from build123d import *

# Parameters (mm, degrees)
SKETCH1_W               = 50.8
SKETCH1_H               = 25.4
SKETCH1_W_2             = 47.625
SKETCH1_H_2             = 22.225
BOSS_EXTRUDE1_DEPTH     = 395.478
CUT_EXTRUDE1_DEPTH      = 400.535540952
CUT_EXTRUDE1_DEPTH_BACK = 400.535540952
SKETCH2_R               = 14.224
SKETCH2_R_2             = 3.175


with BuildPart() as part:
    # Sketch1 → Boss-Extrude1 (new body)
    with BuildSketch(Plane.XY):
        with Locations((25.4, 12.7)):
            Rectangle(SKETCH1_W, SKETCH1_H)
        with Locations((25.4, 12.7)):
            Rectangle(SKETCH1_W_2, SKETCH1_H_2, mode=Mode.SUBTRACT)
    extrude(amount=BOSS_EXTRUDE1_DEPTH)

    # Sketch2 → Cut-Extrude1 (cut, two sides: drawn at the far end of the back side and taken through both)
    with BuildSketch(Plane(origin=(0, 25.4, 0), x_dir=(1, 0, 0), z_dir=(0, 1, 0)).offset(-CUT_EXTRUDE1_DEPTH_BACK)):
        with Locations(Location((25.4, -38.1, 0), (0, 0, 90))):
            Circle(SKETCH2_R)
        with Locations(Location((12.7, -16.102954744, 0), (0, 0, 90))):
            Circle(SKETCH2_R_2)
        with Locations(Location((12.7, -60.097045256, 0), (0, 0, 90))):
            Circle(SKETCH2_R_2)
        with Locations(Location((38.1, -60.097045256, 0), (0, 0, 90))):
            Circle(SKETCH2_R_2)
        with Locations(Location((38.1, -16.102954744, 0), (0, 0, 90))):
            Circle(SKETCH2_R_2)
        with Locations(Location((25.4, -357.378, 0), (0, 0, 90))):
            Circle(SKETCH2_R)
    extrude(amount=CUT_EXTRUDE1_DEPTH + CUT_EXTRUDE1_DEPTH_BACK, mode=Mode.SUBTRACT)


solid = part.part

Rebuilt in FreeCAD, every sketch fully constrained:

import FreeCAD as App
import Part
import Sketcher
from FreeCAD import Vector
Q = App.Units.Quantity

doc = App.newDocument("Part")
body = doc.addObject("PartDesign::Body", "Body")

# Sketch on XY plane
sketch1 = doc.addObject("Sketcher::SketchObject", "Sketch")
body.addObject(sketch1)
sketch1.AttachmentSupport = (doc.XY_Plane, [""])
sketch1.MapMode = "FlatFace"
sketch1.addGeometry([
    Part.LineSegment(Vector(0, 25.4, 0), Vector(0, 0, 0)),  # 0
    Part.LineSegment(Vector(0, 0, 0), Vector(50.8, 0, 0)),  # 1
    Part.LineSegment(Vector(50.8, 0, 0), Vector(50.8, 25.4, 0)),  # 2
    Part.LineSegment(Vector(50.8, 25.4, 0), Vector(0, 25.4, 0)),  # 3
    Part.LineSegment(Vector(49.2125, 1.5875, 0), Vector(1.5875, 1.5875, 0)),  # 4
    Part.LineSegment(Vector(1.5875, 1.5875, 0), Vector(1.5875, 23.8125, 0)),  # 5
    Part.LineSegment(Vector(1.5875, 23.8125, 0), Vector(49.2125, 23.8125, 0)),  # 6
    Part.LineSegment(Vector(49.2125, 23.8125, 0), Vector(49.2125, 1.5875, 0)),  # 7
], False)
sketch1.addConstraint([
    Sketcher.Constraint("Coincident", 0, 2, 1, 1),
    Sketcher.Constraint("Coincident", 1, 2, 2, 1),
    Sketcher.Constraint("Coincident", 2, 2, 3, 1),
    Sketcher.Constraint("Coincident", 3, 2, 0, 1),
    Sketcher.Constraint("Coincident", 4, 2, 5, 1),
    Sketcher.Constraint("Coincident", 5, 2, 6, 1),
    Sketcher.Constraint("Coincident", 6, 2, 7, 1),
    Sketcher.Constraint("Coincident", 7, 2, 4, 1),
    Sketcher.Constraint("Vertical", 0),
    Sketcher.Constraint("Horizontal", 1),
    Sketcher.Constraint("Vertical", 2),
    Sketcher.Constraint("Horizontal", 3),
    Sketcher.Constraint("Horizontal", 4),
    Sketcher.Constraint("Vertical", 5),
    Sketcher.Constraint("Horizontal", 6),
    Sketcher.Constraint("Vertical", 7),
    Sketcher.Constraint("Coincident", 0, 2, -1, 1),
    Sketcher.Constraint("DistanceX", 1, 1, 1, 2, Q("2 in")),
    Sketcher.Constraint("DistanceY", 0, 2, 0, 1, Q("1 in")),
    Sketcher.Constraint("DistanceX", 4, 2, 4, 1, Q("1.875 in")),
    Sketcher.Constraint("DistanceY", 5, 1, 5, 2, Q("0.875 in")),
    Sketcher.Constraint("DistanceX", -1, 1, 4, 2, Q("0.0625 in")),
    Sketcher.Constraint("DistanceY", -1, 1, 4, 2, Q("0.0625 in")),
])
pad1 = doc.addObject("PartDesign::Pad", "Pad")
body.addObject(pad1)
pad1.Profile = sketch1
pad1.Length = Q("15.57 in")

# Sketch on XZ plane
sketch2 = doc.addObject("Sketcher::SketchObject", "Sketch001")
body.addObject(sketch2)
sketch2.AttachmentSupport = (doc.XZ_Plane, [""])
sketch2.MapMode = "FlatFace"
sketch2.AttachmentOffset = App.Placement(Vector(0, 0, -1 * 25.4), App.Rotation())
sketch2.addGeometry([
    Part.Circle(Vector(25.4, 38.1, 0), Vector(0, 0, 1), 14.224),  # 0
    Part.Circle(Vector(12.7, 16.102955, 0), Vector(0, 0, 1), 3.175),  # 1
    Part.Circle(Vector(12.7, 60.097045, 0), Vector(0, 0, 1), 3.175),  # 2
    Part.Circle(Vector(38.1, 60.097045, 0), Vector(0, 0, 1), 3.175),  # 3
    Part.Circle(Vector(38.1, 16.102955, 0), Vector(0, 0, 1), 3.175),  # 4
    Part.Circle(Vector(25.4, 357.378, 0), Vector(0, 0, 1), 14.224),  # 5
], False)
sketch2.addConstraint([
    Sketcher.Constraint("Equal", 1, 2),
    Sketcher.Constraint("Equal", 2, 3),
    Sketcher.Constraint("Equal", 3, 4),
    Sketcher.Constraint("Equal", 0, 5),
    Sketcher.Constraint("Horizontal", 2, 3, 3, 3),
    Sketcher.Constraint("Horizontal", 1, 3, 4, 3),
    Sketcher.Constraint("Vertical", 1, 3, 2, 3),
    Sketcher.Constraint("Vertical", 3, 3, 4, 3),
    Sketcher.Constraint("Vertical", 0, 3, 5, 3),
    Sketcher.Constraint("Diameter", 0, Q("1.12 in")),
    Sketcher.Constraint("Diameter", 1, Q("0.25 in")),
    Sketcher.Constraint("DistanceX", -1, 1, 0, 3, Q("1 in")),
    Sketcher.Constraint("DistanceX", 2, 3, 3, 3, Q("1 in")),
    Sketcher.Constraint("DistanceY", -1, 1, 0, 3, Q("1.5 in")),
    Sketcher.Constraint("DistanceX", -1, 1, 1, 3, Q("0.5 in")),
    Sketcher.Constraint("DistanceY", -1, 1, 5, 3, Q("14.07 in")),
    Sketcher.Constraint("DistanceY", 1, 3, 2, 3, 43.994091),
    Sketcher.Constraint("DistanceY", -1, 1, 1, 3, 16.102955),
])
pocket1 = doc.addObject("PartDesign::Pocket", "Pocket")
body.addObject(pocket1)
pocket1.Profile = sketch2
pocket1.Type = "ThroughAll"
pocket1.Midplane = True

doc.recompute()
